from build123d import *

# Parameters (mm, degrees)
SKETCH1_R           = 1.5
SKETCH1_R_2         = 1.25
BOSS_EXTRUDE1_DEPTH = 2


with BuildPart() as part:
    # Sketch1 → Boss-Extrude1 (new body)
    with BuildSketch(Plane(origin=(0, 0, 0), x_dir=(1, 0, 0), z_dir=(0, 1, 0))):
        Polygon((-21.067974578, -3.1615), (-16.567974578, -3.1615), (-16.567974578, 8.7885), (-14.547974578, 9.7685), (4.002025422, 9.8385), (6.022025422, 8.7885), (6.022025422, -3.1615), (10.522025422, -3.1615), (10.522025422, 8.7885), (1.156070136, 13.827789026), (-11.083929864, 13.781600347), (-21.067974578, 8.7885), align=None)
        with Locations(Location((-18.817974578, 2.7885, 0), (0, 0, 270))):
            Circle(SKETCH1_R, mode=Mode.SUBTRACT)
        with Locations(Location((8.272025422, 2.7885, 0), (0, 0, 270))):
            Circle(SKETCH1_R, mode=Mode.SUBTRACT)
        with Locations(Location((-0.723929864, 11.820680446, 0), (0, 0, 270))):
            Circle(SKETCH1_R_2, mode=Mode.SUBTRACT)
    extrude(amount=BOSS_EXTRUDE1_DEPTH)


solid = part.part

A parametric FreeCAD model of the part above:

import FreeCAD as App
import Part
import Sketcher
from FreeCAD import Vector
Q = App.Units.Quantity


def add_polygon(sketch, points):
    """Adds a closed chain of lines whose ends are joined by coincident constraints."""
    first, n = sketch.GeometryCount, len(points)
    for a, b in zip(points, points[1:] + points[:1]):
        sketch.addGeometry(Part.LineSegment(App.Vector(*a, 0), App.Vector(*b, 0)), False)
    for i in range(n):
        sketch.addConstraint(Sketcher.Constraint("Coincident", first + i, 2, first + (i + 1) % n, 1))

doc = App.newDocument("Part")
body = doc.addObject("PartDesign::Body", "Body")

# Sketch on XZ plane
sketch1 = body.newObject("Sketcher::SketchObject", "Sketch")
sketch1.AttachmentSupport = (doc.getObject("XZ_Plane"), [""])
sketch1.MapMode = "FlatFace"
add_polygon(sketch1, [(-21.1, 3.2), (-16.6, 3.2), (-16.6, -8.8), (-14.5, -9.8), (4, -9.8), (6, -8.8), (6, 3.2), (10.5, 3.2), (10.5, -8.8), (1.2, -13.8), (-11.1, -13.8), (-21.1, -8.8)])  # lines 0-11
sketch1.addGeometry(Part.Circle(Vector(-18.8, -2.8, 0), Vector(0, 0, 1), 1.5), False)  # 12
sketch1.addGeometry(Part.Circle(Vector(8.3, -2.8, 0), Vector(0, 0, 1), 1.5), False)  # 13
sketch1.addGeometry(Part.Circle(Vector(-0.7, -11.8, 0), Vector(0, 0, 1), 1.2), False)  # 14
sketch1.addConstraint(Sketcher.Constraint("Horizontal", 0))
sketch1.addConstraint(Sketcher.Constraint("Vertical", 1))
sketch1.addConstraint(Sketcher.Constraint("Vertical", 5))
sketch1.addConstraint(Sketcher.Constraint("Horizontal", 6))
sketch1.addConstraint(Sketcher.Constraint("Vertical", 7))
sketch1.addConstraint(Sketcher.Constraint("Vertical", 11))
sketch1.addConstraint(Sketcher.Constraint("Equal", 12, 13))
sketch1.addConstraint(Sketcher.Constraint("Parallel", 3, 9))
sketch1.addConstraint(Sketcher.Constraint("Horizontal", 12, 3, 13, 3))
sketch1.addConstraint(Sketcher.Constraint("Horizontal", 1, 2, 4, 2))
sketch1.addConstraint(Sketcher.Constraint("Horizontal", 0, 2, 5, 2))
sketch1.addConstraint(Sketcher.Constraint("Horizontal", 4, 2, 7, 2))
sketch1.addConstraint(Sketcher.Constraint("Horizontal", 7, 2, 10, 2))
sketch1.addConstraint(Sketcher.Constraint("Equal", 0, 6))
sketch1.addConstraint(Sketcher.Constraint("Diameter", 12, 3.0))
sketch1.addConstraint(Sketcher.Constraint("Diameter", 14, 2.5))
sketch1.addConstraint(Sketcher.Constraint("DistanceX", 0, 1, 0, 2, 4.5))
sketch1.addConstraint(Sketcher.Constraint("DistanceY", 1, 2, 12, 3, 6.0))
sketch1.addConstraint(Sketcher.Constraint("DistanceY", 3, 2, 5, 2, 13.0))
sketch1.addConstraint(Sketcher.Constraint("DistanceY", 1, 2, 1, 1, 11.95))
sketch1.addConstraint(Sketcher.Constraint("Angle", 10, Q("153.43 deg")))
sketch1.addConstraint(Sketcher.Constraint("DistanceX", 12, 3, 13, 3, 27.09))
sketch1.addConstraint(Sketcher.Constraint("DistanceX", 12, 3, 0, 2, 2.25))
sketch1.addConstraint(Sketcher.Constraint("DistanceX", 1, 2, 2, 2, 2.02))
sketch1.addConstraint(Sketcher.Constraint("DistanceY", 2, 2, 1, 2, 0.98))
sketch1.addConstraint(Sketcher.Constraint("DistanceX", 3, 2, 13, 3, 4.27))
sketch1.addConstraint(Sketcher.Constraint("DistanceX", 3, 2, 4, 2, 2.02))
sketch1.addConstraint(Sketcher.Constraint("DistanceX", 14, 3, 8, 2, 1.88))
sketch1.addConstraint(Sketcher.Constraint("DistanceX", 9, 2, 14, 3, 10.36))
sketch1.addConstraint(Sketcher.Constraint("DistanceY", 12, 3, -1, 1, 2.7885))
sketch1.addConstraint(Sketcher.Constraint("DistanceY", 9, 2, -1, 1, 13.7816))
sketch1.addConstraint(Sketcher.Constraint("DistanceX", 14, 3, -1, 1, 0.72393))
sketch1.addConstraint(Sketcher.Constraint("DistanceY", 14, 3, -1, 1, 11.82068))
pad1 = body.newObject("PartDesign::Pad", "Pad")
pad1.Profile = sketch1
pad1.Length = 2
pad1.Reversed = True

doc.recompute()
